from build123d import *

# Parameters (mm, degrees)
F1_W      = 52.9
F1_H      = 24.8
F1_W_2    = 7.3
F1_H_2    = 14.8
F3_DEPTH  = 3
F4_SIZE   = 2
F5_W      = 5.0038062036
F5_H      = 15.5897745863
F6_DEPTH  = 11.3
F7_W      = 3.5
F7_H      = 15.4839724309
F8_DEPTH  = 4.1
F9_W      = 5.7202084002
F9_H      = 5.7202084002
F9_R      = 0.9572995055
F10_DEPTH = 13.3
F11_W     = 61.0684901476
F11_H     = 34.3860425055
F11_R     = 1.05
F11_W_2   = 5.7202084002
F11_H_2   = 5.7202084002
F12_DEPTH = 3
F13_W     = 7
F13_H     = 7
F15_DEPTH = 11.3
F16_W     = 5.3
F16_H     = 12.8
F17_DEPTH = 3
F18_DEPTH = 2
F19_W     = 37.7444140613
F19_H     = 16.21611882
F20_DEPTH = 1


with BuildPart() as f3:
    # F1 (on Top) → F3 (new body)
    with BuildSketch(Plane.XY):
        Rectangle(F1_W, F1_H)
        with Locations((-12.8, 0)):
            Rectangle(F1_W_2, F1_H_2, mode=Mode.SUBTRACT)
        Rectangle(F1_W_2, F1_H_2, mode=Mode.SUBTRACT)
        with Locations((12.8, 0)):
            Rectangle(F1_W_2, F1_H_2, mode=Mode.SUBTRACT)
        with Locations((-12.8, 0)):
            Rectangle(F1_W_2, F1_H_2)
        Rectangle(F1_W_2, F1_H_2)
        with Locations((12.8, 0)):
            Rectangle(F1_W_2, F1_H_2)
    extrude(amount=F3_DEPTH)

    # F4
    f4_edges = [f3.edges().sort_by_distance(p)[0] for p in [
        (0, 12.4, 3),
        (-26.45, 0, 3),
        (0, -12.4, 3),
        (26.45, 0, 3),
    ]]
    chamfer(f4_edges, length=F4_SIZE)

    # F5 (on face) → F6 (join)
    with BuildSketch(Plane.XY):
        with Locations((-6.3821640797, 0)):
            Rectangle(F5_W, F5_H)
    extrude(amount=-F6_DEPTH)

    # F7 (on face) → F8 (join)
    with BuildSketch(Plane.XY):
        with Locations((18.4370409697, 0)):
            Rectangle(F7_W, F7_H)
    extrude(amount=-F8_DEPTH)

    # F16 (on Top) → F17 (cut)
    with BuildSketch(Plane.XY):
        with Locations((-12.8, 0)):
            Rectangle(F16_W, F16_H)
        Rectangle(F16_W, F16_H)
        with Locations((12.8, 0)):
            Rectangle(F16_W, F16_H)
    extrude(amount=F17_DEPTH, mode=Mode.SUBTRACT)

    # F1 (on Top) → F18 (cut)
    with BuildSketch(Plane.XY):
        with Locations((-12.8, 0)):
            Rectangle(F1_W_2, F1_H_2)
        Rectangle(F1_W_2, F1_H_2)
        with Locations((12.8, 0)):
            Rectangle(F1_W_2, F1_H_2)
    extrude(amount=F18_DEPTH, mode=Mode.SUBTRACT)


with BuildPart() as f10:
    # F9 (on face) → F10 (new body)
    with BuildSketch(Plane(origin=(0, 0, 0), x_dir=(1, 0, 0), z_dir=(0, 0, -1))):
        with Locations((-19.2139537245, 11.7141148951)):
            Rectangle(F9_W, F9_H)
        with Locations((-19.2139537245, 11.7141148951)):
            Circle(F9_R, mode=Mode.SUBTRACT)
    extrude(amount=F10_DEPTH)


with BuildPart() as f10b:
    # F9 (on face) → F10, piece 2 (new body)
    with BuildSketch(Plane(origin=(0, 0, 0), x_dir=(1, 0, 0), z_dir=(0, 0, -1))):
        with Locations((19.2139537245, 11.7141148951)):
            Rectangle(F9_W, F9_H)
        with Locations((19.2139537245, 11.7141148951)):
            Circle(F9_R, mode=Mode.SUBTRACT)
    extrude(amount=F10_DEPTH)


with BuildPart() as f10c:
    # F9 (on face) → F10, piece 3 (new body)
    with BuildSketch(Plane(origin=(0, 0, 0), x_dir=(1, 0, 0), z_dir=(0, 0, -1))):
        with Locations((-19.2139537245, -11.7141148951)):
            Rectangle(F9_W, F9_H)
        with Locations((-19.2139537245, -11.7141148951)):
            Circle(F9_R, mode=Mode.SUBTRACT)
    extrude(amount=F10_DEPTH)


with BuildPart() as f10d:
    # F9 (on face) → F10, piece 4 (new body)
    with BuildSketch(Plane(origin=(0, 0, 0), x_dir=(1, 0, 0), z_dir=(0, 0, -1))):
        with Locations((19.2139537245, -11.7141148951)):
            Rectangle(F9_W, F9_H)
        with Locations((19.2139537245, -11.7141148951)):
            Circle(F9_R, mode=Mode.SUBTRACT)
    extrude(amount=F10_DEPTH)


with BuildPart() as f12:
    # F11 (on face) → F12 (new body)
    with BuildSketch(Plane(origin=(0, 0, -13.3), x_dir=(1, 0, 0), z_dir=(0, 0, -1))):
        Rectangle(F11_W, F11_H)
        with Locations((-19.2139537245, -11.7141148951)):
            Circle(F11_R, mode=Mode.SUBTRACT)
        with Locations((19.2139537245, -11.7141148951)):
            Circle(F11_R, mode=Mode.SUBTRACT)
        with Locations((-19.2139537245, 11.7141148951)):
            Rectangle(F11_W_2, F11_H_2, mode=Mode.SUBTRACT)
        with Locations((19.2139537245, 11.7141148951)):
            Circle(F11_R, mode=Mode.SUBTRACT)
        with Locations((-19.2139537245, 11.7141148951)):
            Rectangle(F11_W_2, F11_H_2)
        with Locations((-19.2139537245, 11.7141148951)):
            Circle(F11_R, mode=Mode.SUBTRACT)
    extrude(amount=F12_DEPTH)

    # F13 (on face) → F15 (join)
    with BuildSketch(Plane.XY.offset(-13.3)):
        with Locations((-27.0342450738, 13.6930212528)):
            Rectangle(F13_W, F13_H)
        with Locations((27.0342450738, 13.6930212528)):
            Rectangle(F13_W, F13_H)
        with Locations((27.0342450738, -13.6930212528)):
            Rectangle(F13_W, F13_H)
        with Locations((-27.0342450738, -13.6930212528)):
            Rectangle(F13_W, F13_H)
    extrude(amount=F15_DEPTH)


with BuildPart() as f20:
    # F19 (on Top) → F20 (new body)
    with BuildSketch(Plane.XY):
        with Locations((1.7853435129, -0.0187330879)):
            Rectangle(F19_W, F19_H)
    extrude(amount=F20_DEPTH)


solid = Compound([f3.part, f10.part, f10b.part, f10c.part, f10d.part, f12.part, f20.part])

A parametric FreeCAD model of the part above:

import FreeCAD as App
import Part
import Sketcher

V = App.Vector


def edges_at(feature, points):
    """Names of the edges that pass closest to the given points."""
    edges = feature.Shape.Edges
    near = lambda p: min(range(len(edges)), key=lambda i: edges[i].distToShape(Part.Vertex(*p))[0])
    return sorted({f"Edge{near(p) + 1}" for p in points})

doc = App.newDocument("Part")
body = doc.addObject("PartDesign::Body", "Body")

sketch1 = body.newObject("Sketcher::SketchObject", "Sketch")
sketch1.AttachmentSupport = (doc.getObject("XY_Plane"), [""])
sketch1.MapMode = "FlatFace"
sketch1.addGeometry(Part.LineSegment(V(-26, 12, 0), V(-26, -12, 0)), False)
sketch1.addGeometry(Part.LineSegment(V(-26, -12, 0), V(26, -12, 0)), False)
sketch1.addGeometry(Part.LineSegment(V(26, -12, 0), V(26, 12, 0)), False)
sketch1.addGeometry(Part.LineSegment(V(26, 12, 0), V(-26, 12, 0)), False)
sketch1.addConstraint(Sketcher.Constraint("Coincident", 0, 2, 1, 1))
sketch1.addConstraint(Sketcher.Constraint("Coincident", 1, 2, 2, 1))
sketch1.addConstraint(Sketcher.Constraint("Coincident", 2, 2, 3, 1))
sketch1.addConstraint(Sketcher.Constraint("Coincident", 3, 2, 0, 1))
sketch1.addConstraint(Sketcher.Constraint("Vertical", 0))
sketch1.addConstraint(Sketcher.Constraint("Horizontal", 1))
sketch1.addConstraint(Sketcher.Constraint("Vertical", 2))
sketch1.addConstraint(Sketcher.Constraint("Horizontal", 3))
sketch1.addConstraint(Sketcher.Constraint("Symmetric", 0, 2, 2, 2, -1, 1))
sketch1.addConstraint(Sketcher.Constraint("DistanceX", 1, 1, 1, 2, 52.9))
sketch1.addConstraint(Sketcher.Constraint("DistanceY", 0, 2, 0, 1, 24.8))
pad1 = body.newObject("PartDesign::Pad", "Pad")
pad1.Profile = sketch1
pad1.Length = 3
doc.recompute()

chamfer = body.newObject("PartDesign::Chamfer", "Chamfer")
chamfer.Base = (pad1, edges_at(pad1, [
    (0, 12.4, 3),
    (-26.45, 0, 3),
    (0, -12.4, 3),
    (26.45, 0, 3),
]))
chamfer.Size = 2

sketch2 = body.newObject("Sketcher::SketchObject", "Sketch001")
sketch2.AttachmentSupport = (doc.getObject("XY_Plane"), [""])
sketch2.MapMode = "FlatFace"
sketch2.addGeometry(Part.LineSegment(V(-9, 8, 0), V(-9, -8, 0)), False)
sketch2.addGeometry(Part.LineSegment(V(-9, -8, 0), V(-4, -8, 0)), False)
sketch2.addGeometry(Part.LineSegment(V(-4, -8, 0), V(-4, 8, 0)), False)
sketch2.addGeometry(Part.LineSegment(V(-4, 8, 0), V(-9, 8, 0)), False)
sketch2.addConstraint(Sketcher.Constraint("Coincident", 0, 2, 1, 1))
sketch2.addConstraint(Sketcher.Constraint("Coincident", 1, 2, 2, 1))
sketch2.addConstraint(Sketcher.Constraint("Coincident", 2, 2, 3, 1))
sketch2.addConstraint(Sketcher.Constraint("Coincident", 3, 2, 0, 1))
sketch2.addConstraint(Sketcher.Constraint("Vertical", 0))
sketch2.addConstraint(Sketcher.Constraint("Horizontal", 1))
sketch2.addConstraint(Sketcher.Constraint("Vertical", 2))
sketch2.addConstraint(Sketcher.Constraint("Horizontal", 3))
sketch2.addConstraint(Sketcher.Constraint("DistanceX", 1, 1, 1, 2, 5.003806))
sketch2.addConstraint(Sketcher.Constraint("DistanceY", 0, 2, 0, 1, 15.589775))
sketch2.addConstraint(Sketcher.Constraint("DistanceX", 1, 2, -1, 1, 3.880261))
sketch2.addConstraint(Sketcher.Constraint("DistanceY", 0, 2, -1, 1, 7.794887))
pad2 = body.newObject("PartDesign::Pad", "Pad001")
pad2.Profile = sketch2
pad2.Length = 11.3
pad2.Reversed = True

sketch3 = body.newObject("Sketcher::SketchObject", "Sketch002")
sketch3.AttachmentSupport = (doc.getObject("XY_Plane"), [""])
sketch3.MapMode = "FlatFace"
sketch3.addGeometry(Part.LineSegment(V(16.7, 7.7, 0), V(16.7, -7.7, 0)), False)
sketch3.addGeometry(Part.LineSegment(V(16.7, -7.7, 0), V(20.2, -7.7, 0)), False)
sketch3.addGeometry(Part.LineSegment(V(20.2, -7.7, 0), V(20.2, 7.7, 0)), False)
sketch3.addGeometry(Part.LineSegment(V(20.2, 7.7, 0), V(16.7, 7.7, 0)), False)
sketch3.addConstraint(Sketcher.Constraint("Coincident", 0, 2, 1, 1))
sketch3.addConstraint(Sketcher.Constraint("Coincident", 1, 2, 2, 1))
sketch3.addConstraint(Sketcher.Constraint("Coincident", 2, 2, 3, 1))
sketch3.addConstraint(Sketcher.Constraint("Coincident", 3, 2, 0, 1))
sketch3.addConstraint(Sketcher.Constraint("Vertical", 0))
sketch3.addConstraint(Sketcher.Constraint("Horizontal", 1))
sketch3.addConstraint(Sketcher.Constraint("Vertical", 2))
sketch3.addConstraint(Sketcher.Constraint("Horizontal", 3))
sketch3.addConstraint(Sketcher.Constraint("DistanceX", 1, 1, 1, 2, 3.5))
sketch3.addConstraint(Sketcher.Constraint("DistanceY", 0, 2, 0, 1, 15.483972))
sketch3.addConstraint(Sketcher.Constraint("DistanceX", -1, 1, 0, 2, 16.687041))
sketch3.addConstraint(Sketcher.Constraint("DistanceY", 0, 2, -1, 1, 7.741986))
pad3 = body.newObject("PartDesign::Pad", "Pad002")
pad3.Profile = sketch3
pad3.Length = 4.1
pad3.Reversed = True

sketch4 = body.newObject("Sketcher::SketchObject", "Sketch003")
sketch4.AttachmentSupport = (doc.getObject("XY_Plane"), [""])
sketch4.MapMode = "FlatFace"
sketch4.addGeometry(Part.LineSegment(V(-15, 6, 0), V(-15, -6, 0)), False)
sketch4.addGeometry(Part.LineSegment(V(-15, -6, 0), V(-10, -6, 0)), False)
sketch4.addGeometry(Part.LineSegment(V(-10, -6, 0), V(-10, 6, 0)), False)
sketch4.addGeometry(Part.LineSegment(V(-10, 6, 0), V(-15, 6, 0)), False)
sketch4.addGeometry(Part.LineSegment(V(-3, 6, 0), V(-3, -6, 0)), False)
sketch4.addGeometry(Part.LineSegment(V(-3, -6, 0), V(3, -6, 0)), False)
sketch4.addGeometry(Part.LineSegment(V(3, -6, 0), V(3, 6, 0)), False)
sketch4.addGeometry(Part.LineSegment(V(3, 6, 0), V(-3, 6, 0)), False)
sketch4.addGeometry(Part.LineSegment(V(10, 6, 0), V(10, -6, 0)), False)
sketch4.addGeometry(Part.LineSegment(V(10, -6, 0), V(15, -6, 0)), False)
sketch4.addGeometry(Part.LineSegment(V(15, -6, 0), V(15, 6, 0)), False)
sketch4.addGeometry(Part.LineSegment(V(15, 6, 0), V(10, 6, 0)), False)
sketch4.addConstraint(Sketcher.Constraint("Coincident", 0, 2, 1, 1))
sketch4.addConstraint(Sketcher.Constraint("Coincident", 1, 2, 2, 1))
sketch4.addConstraint(Sketcher.Constraint("Coincident", 2, 2, 3, 1))
sketch4.addConstraint(Sketcher.Constraint("Coincident", 3, 2, 0, 1))
sketch4.addConstraint(Sketcher.Constraint("Coincident", 4, 2, 5, 1))
sketch4.addConstraint(Sketcher.Constraint("Coincident", 5, 2, 6, 1))
sketch4.addConstraint(Sketcher.Constraint("Coincident", 6, 2, 7, 1))
sketch4.addConstraint(Sketcher.Constraint("Coincident", 7, 2, 4, 1))
sketch4.addConstraint(Sketcher.Constraint("Coincident", 8, 2, 9, 1))
sketch4.addConstraint(Sketcher.Constraint("Coincident", 9, 2, 10, 1))
sketch4.addConstraint(Sketcher.Constraint("Coincident", 10, 2, 11, 1))
sketch4.addConstraint(Sketcher.Constraint("Coincident", 11, 2, 8, 1))
sketch4.addConstraint(Sketcher.Constraint("Vertical", 0))
sketch4.addConstraint(Sketcher.Constraint("Horizontal", 1))
sketch4.addConstraint(Sketcher.Constraint("Vertical", 2))
sketch4.addConstraint(Sketcher.Constraint("Horizontal", 3))
sketch4.addConstraint(Sketcher.Constraint("Vertical", 4))
sketch4.addConstraint(Sketcher.Constraint("Horizontal", 5))
sketch4.addConstraint(Sketcher.Constraint("Vertical", 6))
sketch4.addConstraint(Sketcher.Constraint("Horizontal", 7))
sketch4.addConstraint(Sketcher.Constraint("Vertical", 8))
sketch4.addConstraint(Sketcher.Constraint("Horizontal", 9))
sketch4.addConstraint(Sketcher.Constraint("Vertical", 10))
sketch4.addConstraint(Sketcher.Constraint("Horizontal", 11))
sketch4.addConstraint(Sketcher.Constraint("Symmetric", 4, 2, 6, 2, -1, 1))
sketch4.addConstraint(Sketcher.Constraint("Symmetric", 2, 2, 8, 2, -1, 1))
sketch4.addConstraint(Sketcher.Constraint("Symmetric", 0, 2, 10, 2, -1, 1))
sketch4.addConstraint(Sketcher.Constraint("Horizontal", 1, 2, 4, 2))
sketch4.addConstraint(Sketcher.Constraint("Horizontal", 3, 2, 6, 2))
sketch4.addConstraint(Sketcher.Constraint("Equal", 3, 5))
sketch4.addConstraint(Sketcher.Constraint("DistanceX", 1, 1, 1, 2, 5.3))
sketch4.addConstraint(Sketcher.Constraint("DistanceY", 0, 2, 0, 1, 12.8))
sketch4.addConstraint(Sketcher.Constraint("DistanceX", 1, 2, 4, 2, 7.5))
pocket1 = body.newObject("PartDesign::Pocket", "Pocket")
pocket1.Profile = sketch4
pocket1.Length = 3
pocket1.Reversed = True

sketch5 = body.newObject("Sketcher::SketchObject", "Sketch004")
sketch5.AttachmentSupport = (doc.getObject("XY_Plane"), [""])
sketch5.MapMode = "FlatFace"
sketch5.addGeometry(Part.LineSegment(V(-16, 7, 0), V(-16, -7, 0)), False)
sketch5.addGeometry(Part.LineSegment(V(-16, -7, 0), V(-9, -7, 0)), False)
sketch5.addGeometry(Part.LineSegment(V(-9, -7, 0), V(-9, 7, 0)), False)
sketch5.addGeometry(Part.LineSegment(V(-9, 7, 0), V(-16, 7, 0)), False)
sketch5.addGeometry(Part.LineSegment(V(-4, 7, 0), V(-4, -7, 0)), False)
sketch5.addGeometry(Part.LineSegment(V(-4, -7, 0), V(4, -7, 0)), False)
sketch5.addGeometry(Part.LineSegment(V(4, -7, 0), V(4, 7, 0)), False)
sketch5.addGeometry(Part.LineSegment(V(4, 7, 0), V(-4, 7, 0)), False)
sketch5.addGeometry(Part.LineSegment(V(9, 7, 0), V(9, -7, 0)), False)
sketch5.addGeometry(Part.LineSegment(V(9, -7, 0), V(16, -7, 0)), False)
sketch5.addGeometry(Part.LineSegment(V(16, -7, 0), V(16, 7, 0)), False)
sketch5.addGeometry(Part.LineSegment(V(16, 7, 0), V(9, 7, 0)), False)
sketch5.addConstraint(Sketcher.Constraint("Coincident", 0, 2, 1, 1))
sketch5.addConstraint(Sketcher.Constraint("Coincident", 1, 2, 2, 1))
sketch5.addConstraint(Sketcher.Constraint("Coincident", 2, 2, 3, 1))
sketch5.addConstraint(Sketcher.Constraint("Coincident", 3, 2, 0, 1))
sketch5.addConstraint(Sketcher.Constraint("Coincident", 4, 2, 5, 1))
sketch5.addConstraint(Sketcher.Constraint("Coincident", 5, 2, 6, 1))
sketch5.addConstraint(Sketcher.Constraint("Coincident", 6, 2, 7, 1))
sketch5.addConstraint(Sketcher.Constraint("Coincident", 7, 2, 4, 1))
sketch5.addConstraint(Sketcher.Constraint("Coincident", 8, 2, 9, 1))
sketch5.addConstraint(Sketcher.Constraint("Coincident", 9, 2, 10, 1))
sketch5.addConstraint(Sketcher.Constraint("Coincident", 10, 2, 11, 1))
sketch5.addConstraint(Sketcher.Constraint("Coincident", 11, 2, 8, 1))
sketch5.addConstraint(Sketcher.Constraint("Vertical", 0))
sketch5.addConstraint(Sketcher.Constraint("Horizontal", 1))
sketch5.addConstraint(Sketcher.Constraint("Vertical", 2))
sketch5.addConstraint(Sketcher.Constraint("Horizontal", 3))
sketch5.addConstraint(Sketcher.Constraint("Vertical", 4))
sketch5.addConstraint(Sketcher.Constraint("Horizontal", 5))
sketch5.addConstraint(Sketcher.Constraint("Vertical", 6))
sketch5.addConstraint(Sketcher.Constraint("Horizontal", 7))
sketch5.addConstraint(Sketcher.Constraint("Vertical", 8))
sketch5.addConstraint(Sketcher.Constraint("Horizontal", 9))
sketch5.addConstraint(Sketcher.Constraint("Vertical", 10))
sketch5.addConstraint(Sketcher.Constraint("Horizontal", 11))
sketch5.addConstraint(Sketcher.Constraint("Symmetric", 4, 2, 6, 2, -1, 1))
sketch5.addConstraint(Sketcher.Constraint("Symmetric", 2, 2, 8, 2, -1, 1))
sketch5.addConstraint(Sketcher.Constraint("Symmetric", 0, 2, 10, 2, -1, 1))
sketch5.addConstraint(Sketcher.Constraint("Horizontal", 1, 2, 4, 2))
sketch5.addConstraint(Sketcher.Constraint("Horizontal", 3, 2, 6, 2))
sketch5.addConstraint(Sketcher.Constraint("Equal", 3, 5))
sketch5.addConstraint(Sketcher.Constraint("DistanceX", 1, 1, 1, 2, 7.3))
sketch5.addConstraint(Sketcher.Constraint("DistanceY", 0, 2, 0, 1, 14.8))
sketch5.addConstraint(Sketcher.Constraint("DistanceX", 1, 2, 4, 2, 5.5))
pocket2 = body.newObject("PartDesign::Pocket", "Pocket001")
pocket2.Profile = sketch5
pocket2.Length = 2
pocket2.Reversed = True
body2 = doc.addObject("PartDesign::Body", "Body001")

sketch6 = body2.newObject("Sketcher::SketchObject", "Sketch005")
sketch6.AttachmentSupport = (doc.getObject("XY_Plane001"), [""])
sketch6.MapMode = "FlatFace"
sketch6.addGeometry(Part.LineSegment(V(-22.1, -14.6, 0), V(-22.1, -8.9, 0)), False)
sketch6.addGeometry(Part.LineSegment(V(-22.1, -8.9, 0), V(-16.4, -8.9, 0)), False)
sketch6.addGeometry(Part.LineSegment(V(-16.4, -8.9, 0), V(-16.4, -14.6, 0)), False)
sketch6.addGeometry(Part.LineSegment(V(-16.4, -14.6, 0), V(-22.1, -14.6, 0)), False)
sketch6.addGeometry(Part.Circle(V(-19.2, -11.7, 0), V(0, 0, 1), 1), False)
sketch6.addConstraint(Sketcher.Constraint("Coincident", 0, 2, 1, 1))
sketch6.addConstraint(Sketcher.Constraint("Coincident", 1, 2, 2, 1))
sketch6.addConstraint(Sketcher.Constraint("Coincident", 2, 2, 3, 1))
sketch6.addConstraint(Sketcher.Constraint("Coincident", 3, 2, 0, 1))
sketch6.addConstraint(Sketcher.Constraint("Vertical", 0))
sketch6.addConstraint(Sketcher.Constraint("Horizontal", 1))
sketch6.addConstraint(Sketcher.Constraint("Vertical", 2))
sketch6.addConstraint(Sketcher.Constraint("Horizontal", 3))
sketch6.addConstraint(Sketcher.Constraint("Equal", 3, 0))
sketch6.addConstraint(Sketcher.Constraint("Diameter", 4, 1.914599))
sketch6.addConstraint(Sketcher.Constraint("DistanceX", 1, 1, 1, 2, 5.720208))
sketch6.addConstraint(Sketcher.Constraint("DistanceY", 0, 2, -1, 1, 8.854011))
sketch6.addConstraint(Sketcher.Constraint("DistanceX", 1, 2, -1, 1, 16.35385))
sketch6.addConstraint(Sketcher.Constraint("DistanceX", 4, 3, -1, 1, 19.213954))
sketch6.addConstraint(Sketcher.Constraint("DistanceY", 4, 3, -1, 1, 11.714115))
pad4 = body2.newObject("PartDesign::Pad", "Pad003")
pad4.Profile = sketch6
pad4.Length = 13.3
pad4.Reversed = True
body3 = doc.addObject("PartDesign::Body", "Body002")

sketch7 = body3.newObject("Sketcher::SketchObject", "Sketch006")
sketch7.AttachmentSupport = (doc.getObject("XY_Plane002"), [""])
sketch7.MapMode = "FlatFace"
sketch7.addGeometry(Part.LineSegment(V(16.4, -14.6, 0), V(16.4, -8.9, 0)), False)
sketch7.addGeometry(Part.LineSegment(V(16.4, -8.9, 0), V(22.1, -8.9, 0)), False)
sketch7.addGeometry(Part.LineSegment(V(22.1, -8.9, 0), V(22.1, -14.6, 0)), False)
sketch7.addGeometry(Part.LineSegment(V(22.1, -14.6, 0), V(16.4, -14.6, 0)), False)
sketch7.addGeometry(Part.Circle(V(19.2, -11.7, 0), V(0, 0, 1), 1), False)
sketch7.addConstraint(Sketcher.Constraint("Coincident", 0, 2, 1, 1))
sketch7.addConstraint(Sketcher.Constraint("Coincident", 1, 2, 2, 1))
sketch7.addConstraint(Sketcher.Constraint("Coincident", 2, 2, 3, 1))
sketch7.addConstraint(Sketcher.Constraint("Coincident", 3, 2, 0, 1))
sketch7.addConstraint(Sketcher.Constraint("Vertical", 0))
sketch7.addConstraint(Sketcher.Constraint("Horizontal", 1))
sketch7.addConstraint(Sketcher.Constraint("Vertical", 2))
sketch7.addConstraint(Sketcher.Constraint("Horizontal", 3))
sketch7.addConstraint(Sketcher.Constraint("Equal", 3, 0))
sketch7.addConstraint(Sketcher.Constraint("Diameter", 4, 1.914599))
sketch7.addConstraint(Sketcher.Constraint("DistanceX", 1, 1, 1, 2, 5.720208))
sketch7.addConstraint(Sketcher.Constraint("DistanceX", -1, 1, 0, 2, 16.35385))
sketch7.addConstraint(Sketcher.Constraint("DistanceY", 0, 2, -1, 1, 8.854011))
sketch7.addConstraint(Sketcher.Constraint("DistanceX", -1, 1, 4, 3, 19.213954))
sketch7.addConstraint(Sketcher.Constraint("DistanceY", 4, 3, -1, 1, 11.714115))
pad5 = body3.newObject("PartDesign::Pad", "Pad004")
pad5.Profile = sketch7
pad5.Length = 13.3
pad5.Reversed = True
body4 = doc.addObject("PartDesign::Body", "Body003")

sketch8 = body4.newObject("Sketcher::SketchObject", "Sketch007")
sketch8.AttachmentSupport = (doc.getObject("XY_Plane003"), [""])
sketch8.MapMode = "FlatFace"
sketch8.addGeometry(Part.LineSegment(V(-22.1, 8.9, 0), V(-22.1, 14.6, 0)), False)
sketch8.addGeometry(Part.LineSegment(V(-22.1, 14.6, 0), V(-16.4, 14.6, 0)), False)
sketch8.addGeometry(Part.LineSegment(V(-16.4, 14.6, 0), V(-16.4, 8.9, 0)), False)
sketch8.addGeometry(Part.LineSegment(V(-16.4, 8.9, 0), V(-22.1, 8.9, 0)), False)
sketch8.addGeometry(Part.Circle(V(-19.2, 11.7, 0), V(0, 0, 1), 1), False)
sketch8.addConstraint(Sketcher.Constraint("Coincident", 0, 2, 1, 1))
sketch8.addConstraint(Sketcher.Constraint("Coincident", 1, 2, 2, 1))
sketch8.addConstraint(Sketcher.Constraint("Coincident", 2, 2, 3, 1))
sketch8.addConstraint(Sketcher.Constraint("Coincident", 3, 2, 0, 1))
sketch8.addConstraint(Sketcher.Constraint("Vertical", 0))
sketch8.addConstraint(Sketcher.Constraint("Horizontal", 1))
sketch8.addConstraint(Sketcher.Constraint("Vertical", 2))
sketch8.addConstraint(Sketcher.Constraint("Horizontal", 3))
sketch8.addConstraint(Sketcher.Constraint("Equal", 3, 0))
sketch8.addConstraint(Sketcher.Constraint("Diameter", 4, 1.914599))
sketch8.addConstraint(Sketcher.Constraint("DistanceX", 1, 1, 1, 2, 5.720208))
sketch8.addConstraint(Sketcher.Constraint("DistanceY", -1, 1, 0, 2, 14.574219))
sketch8.addConstraint(Sketcher.Constraint("DistanceX", 1, 2, -1, 1, 16.35385))
sketch8.addConstraint(Sketcher.Constraint("DistanceX", 4, 3, -1, 1, 19.213954))
sketch8.addConstraint(Sketcher.Constraint("DistanceY", -1, 1, 4, 3, 11.714115))
pad6 = body4.newObject("PartDesign::Pad", "Pad005")
pad6.Profile = sketch8
pad6.Length = 13.3
pad6.Reversed = True
body5 = doc.addObject("PartDesign::Body", "Body004")

sketch9 = body5.newObject("Sketcher::SketchObject", "Sketch008")
sketch9.AttachmentSupport = (doc.getObject("XY_Plane004"), [""])
sketch9.MapMode = "FlatFace"
sketch9.addGeometry(Part.LineSegment(V(16.4, 8.9, 0), V(16.4, 14.6, 0)), False)
sketch9.addGeometry(Part.LineSegment(V(16.4, 14.6, 0), V(22.1, 14.6, 0)), False)
sketch9.addGeometry(Part.LineSegment(V(22.1, 14.6, 0), V(22.1, 8.9, 0)), False)
sketch9.addGeometry(Part.LineSegment(V(22.1, 8.9, 0), V(16.4, 8.9, 0)), False)
sketch9.addGeometry(Part.Circle(V(19.2, 11.7, 0), V(0, 0, 1), 1), False)
sketch9.addConstraint(Sketcher.Constraint("Coincident", 0, 2, 1, 1))
sketch9.addConstraint(Sketcher.Constraint("Coincident", 1, 2, 2, 1))
sketch9.addConstraint(Sketcher.Constraint("Coincident", 2, 2, 3, 1))
sketch9.addConstraint(Sketcher.Constraint("Coincident", 3, 2, 0, 1))
sketch9.addConstraint(Sketcher.Constraint("Vertical", 0))
sketch9.addConstraint(Sketcher.Constraint("Horizontal", 1))
sketch9.addConstraint(Sketcher.Constraint("Vertical", 2))
sketch9.addConstraint(Sketcher.Constraint("Horizontal", 3))
sketch9.addConstraint(Sketcher.Constraint("Equal", 3, 0))
sketch9.addConstraint(Sketcher.Constraint("Diameter", 4, 1.914599))
sketch9.addConstraint(Sketcher.Constraint("DistanceX", 1, 1, 1, 2, 5.720208))
sketch9.addConstraint(Sketcher.Constraint("DistanceX", -1, 1, 0, 2, 16.35385))
sketch9.addConstraint(Sketcher.Constraint("DistanceY", -1, 1, 0, 2, 14.574219))
sketch9.addConstraint(Sketcher.Constraint("DistanceX", -1, 1, 4, 3, 19.213954))
sketch9.addConstraint(Sketcher.Constraint("DistanceY", -1, 1, 4, 3, 11.714115))
pad7 = body5.newObject("PartDesign::Pad", "Pad006")
pad7.Profile = sketch9
pad7.Length = 13.3
pad7.Reversed = True
body6 = doc.addObject("PartDesign::Body", "Body005")

sketch10 = body6.newObject("Sketcher::SketchObject", "Sketch009")
sketch10.AttachmentSupport = (doc.getObject("XY_Plane005"), [""])
sketch10.MapMode = "FlatFace"
sketch10.AttachmentOffset = App.Placement(V(0, 0, -13.3), App.Rotation())
sketch10.addGeometry(Part.LineSegment(V(-30.5, -17.2, 0), V(-30.5, 17.2, 0)), False)
sketch10.addGeometry(Part.LineSegment(V(-30.5, 17.2, 0), V(30.5, 17.2, 0)), False)
sketch10.addGeometry(Part.LineSegment(V(30.5, 17.2, 0), V(30.5, -17.2, 0)), False)
sketch10.addGeometry(Part.LineSegment(V(30.5, -17.2, 0), V(-30.5, -17.2, 0)), False)
sketch10.addGeometry(Part.Circle(V(-19.2, 11.7, 0), V(0, 0, 1), 1.1), False)
sketch10.addGeometry(Part.Circle(V(19.2, 11.7, 0), V(0, 0, 1), 1.1), False)
sketch10.addGeometry(Part.Circle(V(-19.2, -11.7, 0), V(0, 0, 1), 1.1), False)
sketch10.addGeometry(Part.Circle(V(19.2, -11.7, 0), V(0, 0, 1), 1.1), False)
sketch10.addConstraint(Sketcher.Constraint("Coincident", 0, 2, 1, 1))
sketch10.addConstraint(Sketcher.Constraint("Coincident", 1, 2, 2, 1))
sketch10.addConstraint(Sketcher.Constraint("Coincident", 2, 2, 3, 1))
sketch10.addConstraint(Sketcher.Constraint("Coincident", 3, 2, 0, 1))
sketch10.addConstraint(Sketcher.Constraint("Vertical", 0))
sketch10.addConstraint(Sketcher.Constraint("Horizontal", 1))
sketch10.addConstraint(Sketcher.Constraint("Vertical", 2))
sketch10.addConstraint(Sketcher.Constraint("Horizontal", 3))
sketch10.addConstraint(Sketcher.Constraint("Equal", 4, 5))
sketch10.addConstraint(Sketcher.Constraint("Equal", 5, 6))
sketch10.addConstraint(Sketcher.Constraint("Equal", 6, 7))
sketch10.addConstraint(Sketcher.Constraint("Symmetric", 5, 3, 6, 3, -1, 1))
sketch10.addConstraint(Sketcher.Constraint("Symmetric", 4, 3, 7, 3, -1, 1))
sketch10.addConstraint(Sketcher.Constraint("Symmetric", 0, 2, 2, 2, -1, 1))
sketch10.addConstraint(Sketcher.Constraint("Symmetric", 4, 3, 5, 3, -2))
sketch10.addConstraint(Sketcher.Constraint("Diameter", 4, 2.1))
sketch10.addConstraint(Sketcher.Constraint("DistanceX", 1, 1, 1, 2, 61.06849))
sketch10.addConstraint(Sketcher.Constraint("DistanceX", 0, 2, 5, 3, 49.748199))
sketch10.addConstraint(Sketcher.Constraint("DistanceY", 0, 1, 0, 2, 34.386043))
sketch10.addConstraint(Sketcher.Constraint("DistanceY", 6, 3, 4, 3, 23.42823))
pad8 = body6.newObject("PartDesign::Pad", "Pad007")
pad8.Profile = sketch10
pad8.Length = 3
pad8.Reversed = True

sketch11 = body6.newObject("Sketcher::SketchObject", "Sketch010")
sketch11.AttachmentSupport = (doc.getObject("XY_Plane005"), [""])
sketch11.MapMode = "FlatFace"
sketch11.AttachmentOffset = App.Placement(V(0, 0, -13.3), App.Rotation())
sketch11.addGeometry(Part.LineSegment(V(-31, 17, 0), V(-31, 10, 0)), False)
sketch11.addGeometry(Part.LineSegment(V(-31, 10, 0), V(-24, 10, 0)), False)
sketch11.addGeometry(Part.LineSegment(V(-24, 10, 0), V(-24, 17, 0)), False)
sketch11.addGeometry(Part.LineSegment(V(-24, 17, 0), V(-31, 17, 0)), False)
sketch11.addGeometry(Part.LineSegment(V(24, 17, 0), V(24, 10, 0)), False)
sketch11.addGeometry(Part.LineSegment(V(24, 10, 0), V(31, 10, 0)), False)
sketch11.addGeometry(Part.LineSegment(V(31, 10, 0), V(31, 17, 0)), False)
sketch11.addGeometry(Part.LineSegment(V(31, 17, 0), V(24, 17, 0)), False)
sketch11.addGeometry(Part.LineSegment(V(24, -10, 0), V(24, -17, 0)), False)
sketch11.addGeometry(Part.LineSegment(V(24, -17, 0), V(31, -17, 0)), False)
sketch11.addGeometry(Part.LineSegment(V(31, -17, 0), V(31, -10, 0)), False)
sketch11.addGeometry(Part.LineSegment(V(31, -10, 0), V(24, -10, 0)), False)
sketch11.addGeometry(Part.LineSegment(V(-31, -10, 0), V(-31, -17, 0)), False)
sketch11.addGeometry(Part.LineSegment(V(-31, -17, 0), V(-24, -17, 0)), False)
sketch11.addGeometry(Part.LineSegment(V(-24, -17, 0), V(-24, -10, 0)), False)
sketch11.addGeometry(Part.LineSegment(V(-24, -10, 0), V(-31, -10, 0)), False)
sketch11.addConstraint(Sketcher.Constraint("Coincident", 0, 2, 1, 1))
sketch11.addConstraint(Sketcher.Constraint("Coincident", 1, 2, 2, 1))
sketch11.addConstraint(Sketcher.Constraint("Coincident", 2, 2, 3, 1))
sketch11.addConstraint(Sketcher.Constraint("Coincident", 3, 2, 0, 1))
sketch11.addConstraint(Sketcher.Constraint("Coincident", 4, 2, 5, 1))
sketch11.addConstraint(Sketcher.Constraint("Coincident", 5, 2, 6, 1))
sketch11.addConstraint(Sketcher.Constraint("Coincident", 6, 2, 7, 1))
sketch11.addConstraint(Sketcher.Constraint("Coincident", 7, 2, 4, 1))
sketch11.addConstraint(Sketcher.Constraint("Coincident", 8, 2, 9, 1))
sketch11.addConstraint(Sketcher.Constraint("Coincident", 9, 2, 10, 1))
sketch11.addConstraint(Sketcher.Constraint("Coincident", 10, 2, 11, 1))
sketch11.addConstraint(Sketcher.Constraint("Coincident", 11, 2, 8, 1))
sketch11.addConstraint(Sketcher.Constraint("Coincident", 12, 2, 13, 1))
sketch11.addConstraint(Sketcher.Constraint("Coincident", 13, 2, 14, 1))
sketch11.addConstraint(Sketcher.Constraint("Coincident", 14, 2, 15, 1))
sketch11.addConstraint(Sketcher.Constraint("Coincident", 15, 2, 12, 1))
sketch11.addConstraint(Sketcher.Constraint("Vertical", 0))
sketch11.addConstraint(Sketcher.Constraint("Horizontal", 1))
sketch11.addConstraint(Sketcher.Constraint("Vertical", 2))
sketch11.addConstraint(Sketcher.Constraint("Horizontal", 3))
sketch11.addConstraint(Sketcher.Constraint("Vertical", 4))
sketch11.addConstraint(Sketcher.Constraint("Horizontal", 5))
sketch11.addConstraint(Sketcher.Constraint("Vertical", 6))
sketch11.addConstraint(Sketcher.Constraint("Horizontal", 7))
sketch11.addConstraint(Sketcher.Constraint("Vertical", 8))
sketch11.addConstraint(Sketcher.Constraint("Horizontal", 9))
sketch11.addConstraint(Sketcher.Constraint("Vertical", 10))
sketch11.addConstraint(Sketcher.Constraint("Horizontal", 11))
sketch11.addConstraint(Sketcher.Constraint("Vertical", 12))
sketch11.addConstraint(Sketcher.Constraint("Horizontal", 13))
sketch11.addConstraint(Sketcher.Constraint("Vertical", 14))
sketch11.addConstraint(Sketcher.Constraint("Horizontal", 15))
sketch11.addConstraint(Sketcher.Constraint("Symmetric", 2, 2, 8, 2, -1, 1))
sketch11.addConstraint(Sketcher.Constraint("Symmetric", 0, 2, 10, 2, -1, 1))
sketch11.addConstraint(Sketcher.Constraint("Symmetric", 6, 2, 12, 2, -1, 1))
sketch11.addConstraint(Sketcher.Constraint("Symmetric", 4, 2, 14, 2, -1, 1))
sketch11.addConstraint(Sketcher.Constraint("Symmetric", 1, 2, 4, 2, -2))
sketch11.addConstraint(Sketcher.Constraint("Symmetric", 3, 2, 6, 2, -2))
sketch11.addConstraint(Sketcher.Constraint("Equal", 15, 0))
sketch11.addConstraint(Sketcher.Constraint("DistanceX", 1, 1, 1, 2, 7.0))
sketch11.addConstraint(Sketcher.Constraint("DistanceY", -1, 1, 0, 2, 10.193021))
sketch11.addConstraint(Sketcher.Constraint("DistanceX", 1, 2, 4, 2, 47.06849))
pad9 = body6.newObject("PartDesign::Pad", "Pad008")
pad9.Profile = sketch11
pad9.Length = 11.3
body7 = doc.addObject("PartDesign::Body", "Body006")

sketch12 = body7.newObject("Sketcher::SketchObject", "Sketch011")
sketch12.AttachmentSupport = (doc.getObject("XY_Plane006"), [""])
sketch12.MapMode = "FlatFace"
sketch12.addGeometry(Part.LineSegment(V(-17, 8, 0), V(-17, -8, 0)), False)
sketch12.addGeometry(Part.LineSegment(V(-17, -8, 0), V(21, -8, 0)), False)
sketch12.addGeometry(Part.LineSegment(V(21, -8, 0), V(21, 8, 0)), False)
sketch12.addGeometry(Part.LineSegment(V(21, 8, 0), V(-17, 8, 0)), False)
sketch12.addConstraint(Sketcher.Constraint("Coincident", 0, 2, 1, 1))
sketch12.addConstraint(Sketcher.Constraint("Coincident", 1, 2, 2, 1))
sketch12.addConstraint(Sketcher.Constraint("Coincident", 2, 2, 3, 1))
sketch12.addConstraint(Sketcher.Constraint("Coincident", 3, 2, 0, 1))
sketch12.addConstraint(Sketcher.Constraint("Vertical", 0))
sketch12.addConstraint(Sketcher.Constraint("Horizontal", 1))
sketch12.addConstraint(Sketcher.Constraint("Vertical", 2))
sketch12.addConstraint(Sketcher.Constraint("Horizontal", 3))
sketch12.addConstraint(Sketcher.Constraint("DistanceY", 0, 2, 0, 1, 16.216119))
sketch12.addConstraint(Sketcher.Constraint("DistanceX", 1, 1, 1, 2, 37.744414))
sketch12.addConstraint(Sketcher.Constraint("DistanceX", -1, 1, 1, 2, 20.657551))
sketch12.addConstraint(Sketcher.Constraint("DistanceY", 0, 2, -1, 1, 8.126792))
pad10 = body7.newObject("PartDesign::Pad", "Pad009")
pad10.Profile = sketch12
pad10.Length = 1

doc.recompute()
